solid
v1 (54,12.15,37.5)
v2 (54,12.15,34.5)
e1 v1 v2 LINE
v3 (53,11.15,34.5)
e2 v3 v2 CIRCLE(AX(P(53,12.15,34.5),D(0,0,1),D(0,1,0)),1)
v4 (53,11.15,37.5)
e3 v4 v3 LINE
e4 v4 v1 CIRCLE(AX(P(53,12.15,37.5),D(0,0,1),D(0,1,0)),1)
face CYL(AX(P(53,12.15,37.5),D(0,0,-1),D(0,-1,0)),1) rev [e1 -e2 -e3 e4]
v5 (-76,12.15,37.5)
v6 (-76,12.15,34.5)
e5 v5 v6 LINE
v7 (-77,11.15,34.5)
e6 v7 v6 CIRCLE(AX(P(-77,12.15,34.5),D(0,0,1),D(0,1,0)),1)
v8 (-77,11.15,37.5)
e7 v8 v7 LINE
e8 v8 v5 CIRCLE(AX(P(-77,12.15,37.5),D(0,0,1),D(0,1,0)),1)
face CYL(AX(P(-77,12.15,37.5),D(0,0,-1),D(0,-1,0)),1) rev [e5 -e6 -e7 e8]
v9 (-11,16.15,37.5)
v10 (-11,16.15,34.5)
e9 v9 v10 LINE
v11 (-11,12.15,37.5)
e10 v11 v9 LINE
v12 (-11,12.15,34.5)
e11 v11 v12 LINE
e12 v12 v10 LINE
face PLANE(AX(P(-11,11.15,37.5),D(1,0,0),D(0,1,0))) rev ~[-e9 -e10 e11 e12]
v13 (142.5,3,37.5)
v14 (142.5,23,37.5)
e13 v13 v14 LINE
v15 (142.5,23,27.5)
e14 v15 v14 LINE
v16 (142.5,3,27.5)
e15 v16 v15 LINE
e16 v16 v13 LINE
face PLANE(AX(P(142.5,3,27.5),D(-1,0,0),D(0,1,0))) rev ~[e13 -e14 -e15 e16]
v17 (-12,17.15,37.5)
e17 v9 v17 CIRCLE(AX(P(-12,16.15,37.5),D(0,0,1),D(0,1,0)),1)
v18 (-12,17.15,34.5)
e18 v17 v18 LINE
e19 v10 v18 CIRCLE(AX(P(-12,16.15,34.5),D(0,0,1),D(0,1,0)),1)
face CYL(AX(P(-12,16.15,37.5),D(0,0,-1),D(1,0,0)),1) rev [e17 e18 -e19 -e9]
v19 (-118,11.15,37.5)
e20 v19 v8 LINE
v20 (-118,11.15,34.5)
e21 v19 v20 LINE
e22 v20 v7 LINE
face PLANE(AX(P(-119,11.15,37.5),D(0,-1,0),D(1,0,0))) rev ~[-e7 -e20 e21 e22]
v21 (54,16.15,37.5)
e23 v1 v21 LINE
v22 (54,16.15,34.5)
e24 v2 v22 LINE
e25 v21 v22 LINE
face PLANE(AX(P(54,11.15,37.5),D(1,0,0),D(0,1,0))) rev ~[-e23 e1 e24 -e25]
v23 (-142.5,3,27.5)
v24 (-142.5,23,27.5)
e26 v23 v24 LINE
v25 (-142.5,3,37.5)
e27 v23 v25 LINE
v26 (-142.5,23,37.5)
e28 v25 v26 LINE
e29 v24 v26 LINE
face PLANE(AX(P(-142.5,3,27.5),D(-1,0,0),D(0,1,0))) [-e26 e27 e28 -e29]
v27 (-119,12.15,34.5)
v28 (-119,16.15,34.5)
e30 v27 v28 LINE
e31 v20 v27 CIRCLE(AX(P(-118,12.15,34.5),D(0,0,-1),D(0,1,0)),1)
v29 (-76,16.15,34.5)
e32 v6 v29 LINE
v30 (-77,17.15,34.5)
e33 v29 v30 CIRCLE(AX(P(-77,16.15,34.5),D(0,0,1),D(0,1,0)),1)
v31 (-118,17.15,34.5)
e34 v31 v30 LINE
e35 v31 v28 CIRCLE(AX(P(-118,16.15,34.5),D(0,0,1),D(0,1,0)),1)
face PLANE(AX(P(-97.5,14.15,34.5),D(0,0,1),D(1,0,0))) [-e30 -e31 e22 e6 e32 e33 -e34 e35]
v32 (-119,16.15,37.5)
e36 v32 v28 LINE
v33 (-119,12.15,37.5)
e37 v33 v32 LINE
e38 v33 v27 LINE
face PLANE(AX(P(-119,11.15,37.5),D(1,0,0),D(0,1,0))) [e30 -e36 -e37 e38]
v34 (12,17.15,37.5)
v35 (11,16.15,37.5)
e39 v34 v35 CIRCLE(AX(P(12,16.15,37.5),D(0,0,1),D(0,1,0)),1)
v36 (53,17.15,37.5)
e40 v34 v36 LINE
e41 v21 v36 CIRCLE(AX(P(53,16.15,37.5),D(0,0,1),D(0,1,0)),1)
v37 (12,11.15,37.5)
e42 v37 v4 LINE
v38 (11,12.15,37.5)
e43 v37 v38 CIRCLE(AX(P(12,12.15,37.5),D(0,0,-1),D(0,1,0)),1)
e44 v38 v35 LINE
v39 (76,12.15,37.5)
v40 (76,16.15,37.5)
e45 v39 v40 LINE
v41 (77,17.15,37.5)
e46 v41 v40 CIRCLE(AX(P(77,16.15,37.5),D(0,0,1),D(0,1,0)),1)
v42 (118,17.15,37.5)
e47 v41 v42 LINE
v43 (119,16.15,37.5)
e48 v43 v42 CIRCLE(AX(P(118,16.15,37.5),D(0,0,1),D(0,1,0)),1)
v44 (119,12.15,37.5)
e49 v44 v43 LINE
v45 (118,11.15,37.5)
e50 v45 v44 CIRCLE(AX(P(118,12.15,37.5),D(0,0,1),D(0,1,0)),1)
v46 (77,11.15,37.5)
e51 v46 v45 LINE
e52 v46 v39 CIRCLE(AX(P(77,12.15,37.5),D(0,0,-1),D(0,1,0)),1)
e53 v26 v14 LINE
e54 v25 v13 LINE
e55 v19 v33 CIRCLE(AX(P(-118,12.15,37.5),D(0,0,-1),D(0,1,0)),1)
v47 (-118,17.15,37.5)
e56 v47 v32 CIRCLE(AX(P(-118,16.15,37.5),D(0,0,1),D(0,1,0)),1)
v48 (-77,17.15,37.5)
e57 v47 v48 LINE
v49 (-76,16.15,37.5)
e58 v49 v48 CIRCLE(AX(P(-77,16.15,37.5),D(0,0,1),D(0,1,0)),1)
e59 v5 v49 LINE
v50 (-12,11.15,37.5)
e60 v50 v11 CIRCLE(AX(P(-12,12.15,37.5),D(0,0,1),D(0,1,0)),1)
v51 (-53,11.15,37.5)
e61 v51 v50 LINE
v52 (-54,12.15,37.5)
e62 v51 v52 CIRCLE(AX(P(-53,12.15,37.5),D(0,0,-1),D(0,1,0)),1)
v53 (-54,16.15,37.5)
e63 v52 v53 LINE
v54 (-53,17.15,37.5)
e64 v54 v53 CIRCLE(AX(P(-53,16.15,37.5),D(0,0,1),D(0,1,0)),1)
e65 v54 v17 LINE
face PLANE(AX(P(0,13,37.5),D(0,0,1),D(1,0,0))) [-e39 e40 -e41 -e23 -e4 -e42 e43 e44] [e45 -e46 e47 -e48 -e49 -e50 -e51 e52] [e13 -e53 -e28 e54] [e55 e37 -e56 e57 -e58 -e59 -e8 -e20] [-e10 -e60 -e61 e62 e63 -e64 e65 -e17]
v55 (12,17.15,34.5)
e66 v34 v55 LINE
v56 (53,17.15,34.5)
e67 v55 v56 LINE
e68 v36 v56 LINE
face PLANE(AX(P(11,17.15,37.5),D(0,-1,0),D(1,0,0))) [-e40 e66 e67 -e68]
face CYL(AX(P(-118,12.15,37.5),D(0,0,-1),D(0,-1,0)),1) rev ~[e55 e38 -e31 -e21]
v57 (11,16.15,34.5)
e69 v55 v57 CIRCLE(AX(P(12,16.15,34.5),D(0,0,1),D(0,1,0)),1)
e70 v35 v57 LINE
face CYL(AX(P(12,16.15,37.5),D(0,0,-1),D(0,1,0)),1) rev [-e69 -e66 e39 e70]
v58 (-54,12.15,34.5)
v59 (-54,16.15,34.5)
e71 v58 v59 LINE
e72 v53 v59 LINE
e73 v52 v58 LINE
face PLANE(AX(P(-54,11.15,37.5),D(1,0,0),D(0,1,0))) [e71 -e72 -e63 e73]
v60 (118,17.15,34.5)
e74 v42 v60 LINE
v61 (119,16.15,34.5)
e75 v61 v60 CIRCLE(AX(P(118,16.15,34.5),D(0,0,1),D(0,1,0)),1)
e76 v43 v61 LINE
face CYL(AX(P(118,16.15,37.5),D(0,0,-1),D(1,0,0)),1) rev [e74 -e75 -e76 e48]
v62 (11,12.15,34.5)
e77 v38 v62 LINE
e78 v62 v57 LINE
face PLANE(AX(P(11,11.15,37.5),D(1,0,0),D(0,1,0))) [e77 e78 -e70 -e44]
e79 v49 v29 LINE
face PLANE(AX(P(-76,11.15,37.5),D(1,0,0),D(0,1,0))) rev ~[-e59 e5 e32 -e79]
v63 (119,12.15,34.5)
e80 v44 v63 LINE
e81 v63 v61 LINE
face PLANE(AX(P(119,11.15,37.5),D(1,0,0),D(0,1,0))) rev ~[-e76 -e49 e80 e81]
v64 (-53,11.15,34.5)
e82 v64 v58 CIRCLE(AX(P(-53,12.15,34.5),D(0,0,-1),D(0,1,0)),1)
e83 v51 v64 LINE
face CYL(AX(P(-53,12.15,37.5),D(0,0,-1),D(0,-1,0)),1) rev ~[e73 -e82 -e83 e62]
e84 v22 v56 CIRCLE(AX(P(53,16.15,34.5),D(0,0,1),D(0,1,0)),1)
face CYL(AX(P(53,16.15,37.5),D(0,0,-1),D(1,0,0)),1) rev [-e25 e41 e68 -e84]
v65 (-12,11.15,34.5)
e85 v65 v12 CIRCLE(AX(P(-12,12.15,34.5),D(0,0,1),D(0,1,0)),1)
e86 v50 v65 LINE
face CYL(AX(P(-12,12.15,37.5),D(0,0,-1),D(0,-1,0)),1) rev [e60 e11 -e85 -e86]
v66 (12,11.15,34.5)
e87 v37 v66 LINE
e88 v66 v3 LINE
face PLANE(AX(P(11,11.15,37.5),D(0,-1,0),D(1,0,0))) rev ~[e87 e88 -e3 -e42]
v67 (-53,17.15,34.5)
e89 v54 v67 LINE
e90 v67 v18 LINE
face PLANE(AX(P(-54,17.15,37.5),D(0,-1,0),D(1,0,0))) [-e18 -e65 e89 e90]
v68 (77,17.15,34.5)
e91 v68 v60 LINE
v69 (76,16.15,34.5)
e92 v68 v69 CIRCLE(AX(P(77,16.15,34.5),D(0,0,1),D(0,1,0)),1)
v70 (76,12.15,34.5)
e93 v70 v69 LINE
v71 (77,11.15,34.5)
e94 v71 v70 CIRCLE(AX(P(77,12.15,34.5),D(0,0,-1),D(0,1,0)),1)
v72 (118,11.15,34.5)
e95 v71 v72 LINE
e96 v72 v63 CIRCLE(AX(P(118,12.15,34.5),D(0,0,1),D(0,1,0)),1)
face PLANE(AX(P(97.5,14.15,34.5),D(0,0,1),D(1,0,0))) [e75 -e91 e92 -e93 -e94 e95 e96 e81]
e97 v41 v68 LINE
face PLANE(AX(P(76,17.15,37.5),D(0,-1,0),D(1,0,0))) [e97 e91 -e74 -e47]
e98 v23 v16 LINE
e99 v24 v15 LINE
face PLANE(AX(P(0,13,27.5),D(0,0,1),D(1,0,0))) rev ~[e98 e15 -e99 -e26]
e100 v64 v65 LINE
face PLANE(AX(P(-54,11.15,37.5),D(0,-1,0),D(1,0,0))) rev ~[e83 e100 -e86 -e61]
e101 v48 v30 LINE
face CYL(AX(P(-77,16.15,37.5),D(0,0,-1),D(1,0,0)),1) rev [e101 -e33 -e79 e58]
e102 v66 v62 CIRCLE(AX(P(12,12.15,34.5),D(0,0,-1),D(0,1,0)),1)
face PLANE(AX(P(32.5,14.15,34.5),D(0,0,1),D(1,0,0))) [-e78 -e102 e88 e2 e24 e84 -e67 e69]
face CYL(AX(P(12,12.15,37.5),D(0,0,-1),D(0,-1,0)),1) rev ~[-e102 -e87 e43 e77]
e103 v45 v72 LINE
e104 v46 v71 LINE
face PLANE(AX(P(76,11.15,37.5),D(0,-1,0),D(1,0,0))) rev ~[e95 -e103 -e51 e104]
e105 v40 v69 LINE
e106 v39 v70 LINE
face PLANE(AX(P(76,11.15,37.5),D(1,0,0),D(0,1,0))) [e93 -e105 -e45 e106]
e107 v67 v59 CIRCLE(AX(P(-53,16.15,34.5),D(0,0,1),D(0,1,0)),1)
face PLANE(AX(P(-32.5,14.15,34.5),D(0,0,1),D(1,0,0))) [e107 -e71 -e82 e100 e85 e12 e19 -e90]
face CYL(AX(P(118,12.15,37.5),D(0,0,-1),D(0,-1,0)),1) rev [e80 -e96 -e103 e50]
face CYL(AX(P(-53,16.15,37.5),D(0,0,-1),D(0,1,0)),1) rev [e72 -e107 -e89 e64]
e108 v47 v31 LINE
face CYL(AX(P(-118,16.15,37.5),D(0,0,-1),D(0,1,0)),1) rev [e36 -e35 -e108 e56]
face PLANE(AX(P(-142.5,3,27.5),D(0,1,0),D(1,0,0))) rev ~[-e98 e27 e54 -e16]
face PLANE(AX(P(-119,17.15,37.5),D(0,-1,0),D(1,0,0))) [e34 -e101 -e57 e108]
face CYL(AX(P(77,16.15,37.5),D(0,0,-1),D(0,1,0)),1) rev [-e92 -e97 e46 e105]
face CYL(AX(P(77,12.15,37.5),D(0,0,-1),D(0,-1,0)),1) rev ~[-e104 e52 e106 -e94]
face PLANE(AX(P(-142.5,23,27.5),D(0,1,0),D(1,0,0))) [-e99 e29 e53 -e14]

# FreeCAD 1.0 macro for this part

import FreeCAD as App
import Part
import Sketcher

V = App.Vector


def edges_at(feature, points):
    """Names of the edges that pass closest to the given points."""
    edges = feature.Shape.Edges
    near = lambda p: min(range(len(edges)), key=lambda i: edges[i].distToShape(Part.Vertex(*p))[0])
    return sorted({f"Edge{near(p) + 1}" for p in points})

doc = App.newDocument("Part")
body = doc.addObject("PartDesign::Body", "Body")

# Sketch on XY plane
sketch1 = body.newObject("Sketcher::SketchObject", "Sketch")
sketch1.AttachmentSupport = (doc.getObject("XY_Plane"), [""])
sketch1.MapMode = "FlatFace"
sketch1.AttachmentOffset = App.Placement(V(0, 0, 27.5), App.Rotation())
sketch1.addGeometry(Part.LineSegment(V(-142, 23, 0), V(-142, 3, 0)), False)
sketch1.addGeometry(Part.LineSegment(V(-142, 3, 0), V(142, 3, 0)), False)
sketch1.addGeometry(Part.LineSegment(V(142, 3, 0), V(142, 23, 0)), False)
sketch1.addGeometry(Part.LineSegment(V(142, 23, 0), V(-142, 23, 0)), False)
sketch1.addConstraint(Sketcher.Constraint("Coincident", 0, 2, 1, 1))
sketch1.addConstraint(Sketcher.Constraint("Coincident", 1, 2, 2, 1))
sketch1.addConstraint(Sketcher.Constraint("Coincident", 2, 2, 3, 1))
sketch1.addConstraint(Sketcher.Constraint("Coincident", 3, 2, 0, 1))
sketch1.addConstraint(Sketcher.Constraint("Vertical", 0))
sketch1.addConstraint(Sketcher.Constraint("Horizontal", 1))
sketch1.addConstraint(Sketcher.Constraint("Vertical", 2))
sketch1.addConstraint(Sketcher.Constraint("Horizontal", 3))
sketch1.addConstraint(Sketcher.Constraint("DistanceX", 1, 1, 1, 2, 285.0))
sketch1.addConstraint(Sketcher.Constraint("DistanceY", 0, 2, 0, 1, 20.0))
sketch1.addConstraint(Sketcher.Constraint("DistanceY", -1, 1, 0, 2, 3.0))
sketch1.addConstraint(Sketcher.Constraint("DistanceX", 0, 2, -1, 1, 142.5))
pad1 = body.newObject("PartDesign::Pad", "Pad")
pad1.Profile = sketch1
pad1.Length = 10

# Sketch on XY plane
sketch2 = body.newObject("Sketcher::SketchObject", "Sketch001")
sketch2.AttachmentSupport = (doc.getObject("XY_Plane"), [""])
sketch2.MapMode = "FlatFace"
sketch2.AttachmentOffset = App.Placement(V(0, 0, 37.5), App.Rotation())
sketch2.addGeometry(Part.LineSegment(V(-119, 17, 0), V(-119, 11, 0)), False)
sketch2.addGeometry(Part.LineSegment(V(-119, 11, 0), V(-76, 11, 0)), False)
sketch2.addGeometry(Part.LineSegment(V(-76, 11, 0), V(-76, 17, 0)), False)
sketch2.addGeometry(Part.LineSegment(V(-76, 17, 0), V(-119, 17, 0)), False)
sketch2.addGeometry(Part.LineSegment(V(-54, 17, 0), V(-54, 11, 0)), False)
sketch2.addGeometry(Part.LineSegment(V(-54, 11, 0), V(-11, 11, 0)), False)
sketch2.addGeometry(Part.LineSegment(V(-11, 11, 0), V(-11, 17, 0)), False)
sketch2.addGeometry(Part.LineSegment(V(-11, 17, 0), V(-54, 17, 0)), False)
sketch2.addGeometry(Part.LineSegment(V(11, 17, 0), V(11, 11, 0)), False)
sketch2.addGeometry(Part.LineSegment(V(11, 11, 0), V(54, 11, 0)), False)
sketch2.addGeometry(Part.LineSegment(V(54, 11, 0), V(54, 17, 0)), False)
sketch2.addGeometry(Part.LineSegment(V(54, 17, 0), V(11, 17, 0)), False)
sketch2.addGeometry(Part.LineSegment(V(76, 17, 0), V(76, 11, 0)), False)
sketch2.addGeometry(Part.LineSegment(V(76, 11, 0), V(119, 11, 0)), False)
sketch2.addGeometry(Part.LineSegment(V(119, 11, 0), V(119, 17, 0)), False)
sketch2.addGeometry(Part.LineSegment(V(119, 17, 0), V(76, 17, 0)), False)
sketch2.addConstraint(Sketcher.Constraint("Coincident", 0, 2, 1, 1))
sketch2.addConstraint(Sketcher.Constraint("Coincident", 1, 2, 2, 1))
sketch2.addConstraint(Sketcher.Constraint("Coincident", 2, 2, 3, 1))
sketch2.addConstraint(Sketcher.Constraint("Coincident", 3, 2, 0, 1))
sketch2.addConstraint(Sketcher.Constraint("Coincident", 4, 2, 5, 1))
sketch2.addConstraint(Sketcher.Constraint("Coincident", 5, 2, 6, 1))
sketch2.addConstraint(Sketcher.Constraint("Coincident", 6, 2, 7, 1))
sketch2.addConstraint(Sketcher.Constraint("Coincident", 7, 2, 4, 1))
sketch2.addConstraint(Sketcher.Constraint("Coincident", 8, 2, 9, 1))
sketch2.addConstraint(Sketcher.Constraint("Coincident", 9, 2, 10, 1))
sketch2.addConstraint(Sketcher.Constraint("Coincident", 10, 2, 11, 1))
sketch2.addConstraint(Sketcher.Constraint("Coincident", 11, 2, 8, 1))
sketch2.addConstraint(Sketcher.Constraint("Coincident", 12, 2, 13, 1))
sketch2.addConstraint(Sketcher.Constraint("Coincident", 13, 2, 14, 1))
sketch2.addConstraint(Sketcher.Constraint("Coincident", 14, 2, 15, 1))
sketch2.addConstraint(Sketcher.Constraint("Coincident", 15, 2, 12, 1))
sketch2.addConstraint(Sketcher.Constraint("Vertical", 0))
sketch2.addConstraint(Sketcher.Constraint("Horizontal", 1))
sketch2.addConstraint(Sketcher.Constraint("Vertical", 2))
sketch2.addConstraint(Sketcher.Constraint("Horizontal", 3))
sketch2.addConstraint(Sketcher.Constraint("Vertical", 4))
sketch2.addConstraint(Sketcher.Constraint("Horizontal", 5))
sketch2.addConstraint(Sketcher.Constraint("Vertical", 6))
sketch2.addConstraint(Sketcher.Constraint("Horizontal", 7))
sketch2.addConstraint(Sketcher.Constraint("Vertical", 8))
sketch2.addConstraint(Sketcher.Constraint("Horizontal", 9))
sketch2.addConstraint(Sketcher.Constraint("Vertical", 10))
sketch2.addConstraint(Sketcher.Constraint("Horizontal", 11))
sketch2.addConstraint(Sketcher.Constraint("Vertical", 12))
sketch2.addConstraint(Sketcher.Constraint("Horizontal", 13))
sketch2.addConstraint(Sketcher.Constraint("Vertical", 14))
sketch2.addConstraint(Sketcher.Constraint("Horizontal", 15))
sketch2.addConstraint(Sketcher.Constraint("Symmetric", 5, 2, 8, 2, -2))
sketch2.addConstraint(Sketcher.Constraint("Symmetric", 7, 2, 10, 2, -2))
sketch2.addConstraint(Sketcher.Constraint("Symmetric", 1, 2, 12, 2, -2))
sketch2.addConstraint(Sketcher.Constraint("Symmetric", 3, 2, 14, 2, -2))
sketch2.addConstraint(Sketcher.Constraint("Horizontal", 1, 2, 4, 2))
sketch2.addConstraint(Sketcher.Constraint("Horizontal", 3, 2, 6, 2))
sketch2.addConstraint(Sketcher.Constraint("Equal", 3, 5))
sketch2.addConstraint(Sketcher.Constraint("DistanceX", 1, 1, 1, 2, 43.0))
sketch2.addConstraint(Sketcher.Constraint("DistanceY", 0, 2, 0, 1, 6.0))
sketch2.addConstraint(Sketcher.Constraint("DistanceX", 0, 2, -1, 1, 119.0))
sketch2.addConstraint(Sketcher.Constraint("DistanceX", 4, 2, -1, 1, 54.0))
sketch2.addConstraint(Sketcher.Constraint("DistanceY", -1, 1, 0, 2, 11.15))
pocket1 = body.newObject("PartDesign::Pocket", "Pocket")
pocket1.Profile = sketch2
pocket1.Length = 3
doc.recompute()

fillet = body.newObject("PartDesign::Fillet", "Fillet")
fillet.Base = (pocket1, edges_at(pocket1, [
    (-76, 17.15, 36),
    (-76, 11.15, 36),
    (-119, 11.15, 36),
    (-119, 17.15, 36),
    (-11, 17.15, 36),
    (-11, 11.15, 36),
    (-54, 11.15, 36),
    (-54, 17.15, 36),
    (54, 17.15, 36),
    (54, 11.15, 36),
    (11, 11.15, 36),
    (11, 17.15, 36),
    (119, 17.15, 36),
    (119, 11.15, 36),
    (76, 11.15, 36),
    (76, 17.15, 36),
]))
fillet.Radius = 1

doc.recompute()
